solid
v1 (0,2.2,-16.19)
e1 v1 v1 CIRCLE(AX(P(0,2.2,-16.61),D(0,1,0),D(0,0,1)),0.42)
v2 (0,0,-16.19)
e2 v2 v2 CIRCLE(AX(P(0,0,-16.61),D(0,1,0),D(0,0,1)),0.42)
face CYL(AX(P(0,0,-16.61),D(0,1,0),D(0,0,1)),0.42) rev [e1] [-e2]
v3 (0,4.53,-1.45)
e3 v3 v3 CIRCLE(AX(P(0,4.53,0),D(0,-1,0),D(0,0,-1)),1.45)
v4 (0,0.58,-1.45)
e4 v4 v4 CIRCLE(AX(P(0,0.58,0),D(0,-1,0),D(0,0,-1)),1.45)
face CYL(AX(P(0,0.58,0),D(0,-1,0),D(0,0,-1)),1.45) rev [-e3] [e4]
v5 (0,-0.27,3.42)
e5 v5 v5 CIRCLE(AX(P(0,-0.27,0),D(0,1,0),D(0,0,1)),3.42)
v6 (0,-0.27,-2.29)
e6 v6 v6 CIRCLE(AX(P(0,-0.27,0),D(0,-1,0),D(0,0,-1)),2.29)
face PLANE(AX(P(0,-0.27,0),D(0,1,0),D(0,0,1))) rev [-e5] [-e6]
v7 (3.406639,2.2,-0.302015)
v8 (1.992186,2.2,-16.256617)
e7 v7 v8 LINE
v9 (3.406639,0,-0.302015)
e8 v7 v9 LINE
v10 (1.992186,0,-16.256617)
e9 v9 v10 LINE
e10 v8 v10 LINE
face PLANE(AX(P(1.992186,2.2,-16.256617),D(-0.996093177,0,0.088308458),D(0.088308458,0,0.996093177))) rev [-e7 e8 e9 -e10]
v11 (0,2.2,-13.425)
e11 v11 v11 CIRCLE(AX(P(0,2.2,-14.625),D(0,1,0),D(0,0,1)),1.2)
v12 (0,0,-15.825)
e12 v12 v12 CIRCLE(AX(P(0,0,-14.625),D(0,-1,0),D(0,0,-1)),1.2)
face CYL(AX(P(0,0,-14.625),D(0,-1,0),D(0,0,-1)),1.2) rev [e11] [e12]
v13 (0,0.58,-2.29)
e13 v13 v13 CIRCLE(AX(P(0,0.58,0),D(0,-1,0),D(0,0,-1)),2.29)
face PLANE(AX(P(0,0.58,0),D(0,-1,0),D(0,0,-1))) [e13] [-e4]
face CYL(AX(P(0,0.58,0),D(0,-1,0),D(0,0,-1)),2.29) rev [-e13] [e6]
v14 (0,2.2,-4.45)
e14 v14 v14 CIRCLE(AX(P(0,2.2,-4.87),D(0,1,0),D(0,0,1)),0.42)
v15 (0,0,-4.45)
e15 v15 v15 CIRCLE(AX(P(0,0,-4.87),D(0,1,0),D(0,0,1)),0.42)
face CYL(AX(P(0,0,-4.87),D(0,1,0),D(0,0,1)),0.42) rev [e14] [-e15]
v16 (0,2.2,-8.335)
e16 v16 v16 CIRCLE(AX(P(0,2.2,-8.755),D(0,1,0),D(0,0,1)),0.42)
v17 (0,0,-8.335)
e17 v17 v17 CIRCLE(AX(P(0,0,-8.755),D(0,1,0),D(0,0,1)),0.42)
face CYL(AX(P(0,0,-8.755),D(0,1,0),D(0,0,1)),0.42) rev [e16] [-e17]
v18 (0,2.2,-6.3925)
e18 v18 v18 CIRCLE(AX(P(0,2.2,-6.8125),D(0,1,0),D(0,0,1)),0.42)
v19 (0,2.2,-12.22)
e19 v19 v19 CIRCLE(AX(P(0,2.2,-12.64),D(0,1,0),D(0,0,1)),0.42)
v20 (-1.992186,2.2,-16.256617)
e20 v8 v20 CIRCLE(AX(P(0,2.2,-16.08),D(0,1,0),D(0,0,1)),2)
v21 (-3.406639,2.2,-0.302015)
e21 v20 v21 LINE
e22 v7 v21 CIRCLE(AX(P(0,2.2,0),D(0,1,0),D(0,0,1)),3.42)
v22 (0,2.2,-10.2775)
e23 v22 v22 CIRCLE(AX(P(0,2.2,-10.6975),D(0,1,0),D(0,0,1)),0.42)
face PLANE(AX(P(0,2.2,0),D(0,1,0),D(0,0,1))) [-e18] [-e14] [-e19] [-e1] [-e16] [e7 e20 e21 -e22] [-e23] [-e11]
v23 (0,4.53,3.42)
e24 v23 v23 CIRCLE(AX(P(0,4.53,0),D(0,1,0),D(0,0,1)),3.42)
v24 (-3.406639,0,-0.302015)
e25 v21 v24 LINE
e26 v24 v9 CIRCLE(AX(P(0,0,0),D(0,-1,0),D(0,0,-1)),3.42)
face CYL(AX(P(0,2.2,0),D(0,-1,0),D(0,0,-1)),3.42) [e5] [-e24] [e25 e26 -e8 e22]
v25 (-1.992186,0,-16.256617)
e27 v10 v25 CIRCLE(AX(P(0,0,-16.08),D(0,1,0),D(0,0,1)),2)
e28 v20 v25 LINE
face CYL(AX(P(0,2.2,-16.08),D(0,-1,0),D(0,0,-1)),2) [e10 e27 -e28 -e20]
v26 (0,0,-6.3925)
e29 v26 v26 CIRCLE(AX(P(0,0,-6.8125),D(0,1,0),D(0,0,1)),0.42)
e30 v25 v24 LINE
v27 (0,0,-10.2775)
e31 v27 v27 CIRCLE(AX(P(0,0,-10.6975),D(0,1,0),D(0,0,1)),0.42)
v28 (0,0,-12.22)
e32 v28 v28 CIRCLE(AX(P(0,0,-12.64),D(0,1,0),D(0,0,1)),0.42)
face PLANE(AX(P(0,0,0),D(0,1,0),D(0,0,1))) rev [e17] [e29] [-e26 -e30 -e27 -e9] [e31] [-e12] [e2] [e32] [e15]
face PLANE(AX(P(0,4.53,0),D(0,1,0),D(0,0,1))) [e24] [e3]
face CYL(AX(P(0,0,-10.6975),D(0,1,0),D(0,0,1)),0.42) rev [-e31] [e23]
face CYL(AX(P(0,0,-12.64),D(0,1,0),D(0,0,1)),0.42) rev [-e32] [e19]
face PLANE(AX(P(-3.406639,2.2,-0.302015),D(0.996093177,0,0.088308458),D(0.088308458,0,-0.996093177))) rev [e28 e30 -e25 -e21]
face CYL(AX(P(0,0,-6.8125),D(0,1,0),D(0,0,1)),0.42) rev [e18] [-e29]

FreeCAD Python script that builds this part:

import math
import FreeCAD as App
import Part
import Sketcher
Q = App.Units.Quantity

doc = App.newDocument("Part")
body = doc.addObject("PartDesign::Body", "Body")

sketch1 = body.newObject("Sketcher::SketchObject", "Sketch")
sketch1.AttachmentSupport = (doc.getObject("XZ_Plane"), [""])
sketch1.MapMode = "FlatFace"
sketch1.addGeometry([
    Part.LineSegment(App.Vector(-2, -16.3, 0), App.Vector(-3.4, -0.3, 0)),
    Part.ArcOfCircle(Part.Circle(App.Vector(0, 0, 0), App.Vector(0, 0, 1), 3.4), math.radians(-5), math.radians(185)),
    Part.LineSegment(App.Vector(3.4, -0.3, 0), App.Vector(2, -16.3, 0)),
    Part.ArcOfCircle(Part.Circle(App.Vector(0, -16.1, 0), App.Vector(0, 0, 1), 2), math.radians(-175), math.radians(-5)),
], False)
sketch1.addConstraint([
    Sketcher.Constraint("Tangent", 0, 2, 1, 2),
    Sketcher.Constraint("Tangent", 1, 1, 2, 1),
    Sketcher.Constraint("Tangent", 2, 2, 3, 2),
    Sketcher.Constraint("Tangent", 3, 1, 0, 1),
    Sketcher.Constraint("Coincident", 1, 3, -1, 1),
    Sketcher.Constraint("PointOnObject", 3, 3, -2),
    Sketcher.Constraint("Radius", 3, Q("2 mm")),
    Sketcher.Constraint("Radius", 1, Q("3.42 mm")),
    Sketcher.Constraint("DistanceY", 3, 3, -1, 1, Q("16.08 mm")),
])
pad1 = body.newObject("PartDesign::Pad", "Pad")
pad1.Profile = sketch1
pad1.Length = 2.2
pad1.Reversed = True

sketch2 = body.newObject("Sketcher::SketchObject", "Sketch001")
sketch2.AttachmentSupport = (doc.getObject("XZ_Plane"), [""])
sketch2.MapMode = "FlatFace"
sketch2.AttachmentOffset = App.Placement(App.Vector(0, 0, -2.2), App.Rotation())
sketch2.addGeometry(Part.Circle(App.Vector(0, 0, 0), App.Vector(0, 0, 1), 3.4), False)
sketch2.addConstraint([
    Sketcher.Constraint("Coincident", 0, 3, -1, 1),
    Sketcher.Constraint("Diameter", 0, Q("6.84 mm")),
])
pad2 = body.newObject("PartDesign::Pad", "Pad001")
pad2.Profile = sketch2
pad2.Length = 2.33
pad2.Reversed = True

sketch3 = body.newObject("Sketcher::SketchObject", "Sketch002")
sketch3.AttachmentSupport = (doc.getObject("XZ_Plane"), [""])
sketch3.MapMode = "FlatFace"
sketch3.AttachmentOffset = App.Placement(App.Vector(0, 0, -2.2), App.Rotation())
sketch3.addGeometry([
    Part.Circle(App.Vector(0, -4.87, 0), App.Vector(0, 0, 1), 0.42),
    Part.Circle(App.Vector(0, -6.81, 0), App.Vector(0, 0, 1), 0.42),
    Part.Circle(App.Vector(0, -8.76, 0), App.Vector(0, 0, 1), 0.42),
    Part.Circle(App.Vector(0, -10.7, 0), App.Vector(0, 0, 1), 0.42),
    Part.Circle(App.Vector(0, -12.64, 0), App.Vector(0, 0, 1), 0.42),
    Part.Circle(App.Vector(0, -14.62, 0), App.Vector(0, 0, 1), 0.7),
    Part.Circle(App.Vector(0, -16.61, 0), App.Vector(0, 0, 1), 0.42),
], False)
sketch3.addConstraint([
    Sketcher.Constraint("Equal", 0, 1),
    Sketcher.Constraint("Equal", 1, 2),
    Sketcher.Constraint("Equal", 2, 3),
    Sketcher.Constraint("Equal", 3, 4),
    Sketcher.Constraint("Equal", 4, 6),
    Sketcher.Constraint("PointOnObject", 0, 3, -2),
    Sketcher.Constraint("PointOnObject", 1, 3, -2),
    Sketcher.Constraint("PointOnObject", 2, 3, -2),
    Sketcher.Constraint("PointOnObject", 3, 3, -2),
    Sketcher.Constraint("PointOnObject", 4, 3, -2),
    Sketcher.Constraint("PointOnObject", 5, 3, -2),
    Sketcher.Constraint("PointOnObject", 6, 3, -2),
    Sketcher.Constraint("Diameter", 5, Q("1.4 mm")),
    Sketcher.Constraint("Diameter", 0, Q("0.84 mm")),
    Sketcher.Constraint("DistanceY", 0, 3, -1, 1, Q("4.87 mm")),
    Sketcher.Constraint("DistanceY", 4, 3, -1, 1, Q("12.64 mm")),
    Sketcher.Constraint("DistanceY", 6, 3, -1, 1, Q("16.61 mm")),
    Sketcher.Constraint("DistanceY", 5, 3, 2, 3, Q("5.87 mm")),
    Sketcher.Constraint("DistanceY", 2, 3, -1, 1, Q("8.755 mm")),
    Sketcher.Constraint("DistanceY", 3, 3, 1, 3, Q("3.885 mm")),
    Sketcher.Constraint("DistanceY", 1, 3, -1, 1, Q("6.8125 mm")),
])
pocket1 = body.newObject("PartDesign::Pocket", "Pocket")
pocket1.Profile = sketch3
pocket1.Type = "ThroughAll"
pocket1.Reversed = True

sketch4 = body.newObject("Sketcher::SketchObject", "Sketch003")
sketch4.AttachmentSupport = (doc.getObject("XZ_Plane"), [""])
sketch4.MapMode = "FlatFace"
sketch4.AttachmentOffset = App.Placement(App.Vector(0, 0, 0.27), App.Rotation())
sketch4.addGeometry(Part.Circle(App.Vector(0, 0, 0), App.Vector(0, 0, 1), 3.4), False)
sketch4.addConstraint([
    Sketcher.Constraint("Coincident", 0, 3, -1, 1),
    Sketcher.Constraint("Diameter", 0, Q("6.84 mm")),
])
pad3 = body.newObject("PartDesign::Pad", "Pad002")
pad3.Profile = sketch4
pad3.Length = 0.27
pad3.Reversed = True

sketch5 = body.newObject("Sketcher::SketchObject", "Sketch004")
sketch5.AttachmentSupport = (doc.getObject("XZ_Plane"), [""])
sketch5.MapMode = "FlatFace"
sketch5.AttachmentOffset = App.Placement(App.Vector(0, 0, 0.27), App.Rotation())
sketch5.addGeometry(Part.Circle(App.Vector(0, 0, 0), App.Vector(0, 0, 1), 2.3), False)
sketch5.addConstraint([
    Sketcher.Constraint("Coincident", 0, 3, -1, 1),
    Sketcher.Constraint("Diameter", 0, Q("4.58 mm")),
])
pocket2 = body.newObject("PartDesign::Pocket", "Pocket001")
pocket2.Profile = sketch5
pocket2.Length = 0.85

sketch6 = body.newObject("Sketcher::SketchObject", "Sketch005")
sketch6.AttachmentSupport = (doc.getObject("XZ_Plane"), [""])
sketch6.MapMode = "FlatFace"
sketch6.AttachmentOffset = App.Placement(App.Vector(0, 0, -0.58), App.Rotation())
sketch6.addGeometry(Part.Circle(App.Vector(0, 0, 0), App.Vector(0, 0, 1), 1.4), False)
sketch6.addConstraint([
    Sketcher.Constraint("Coincident", 0, 3, -1, 1),
    Sketcher.Constraint("Diameter", 0, Q("2.9 mm")),
])
doc.recompute()
hole = body.newObject("PartDesign::Hole", "Hole")
hole.Profile = sketch6
hole.ThreadType = "None"
hole.Diameter = 2.9
hole.DepthType = "ThroughAll"

sketch7 = body.newObject("Sketcher::SketchObject", "Sketch006")
sketch7.AttachmentSupport = (doc.getObject("XZ_Plane"), [""])
sketch7.MapMode = "FlatFace"
sketch7.addGeometry(Part.Circle(App.Vector(0, -14.6, 0), App.Vector(0, 0, 1), 1.2), False)
sketch7.addConstraint([
    Sketcher.Constraint("PointOnObject", 0, 3, -2),
    Sketcher.Constraint("Diameter", 0, Q("2.4 mm")),
    Sketcher.Constraint("DistanceY", 0, 3, -1, 1, Q("14.625 mm")),
])
doc.recompute()
hole2 = body.newObject("PartDesign::Hole", "Hole001")
hole2.Profile = sketch7
hole2.ThreadType = "None"
hole2.Diameter = 2.4
hole2.DepthType = "ThroughAll"

doc.recompute()
